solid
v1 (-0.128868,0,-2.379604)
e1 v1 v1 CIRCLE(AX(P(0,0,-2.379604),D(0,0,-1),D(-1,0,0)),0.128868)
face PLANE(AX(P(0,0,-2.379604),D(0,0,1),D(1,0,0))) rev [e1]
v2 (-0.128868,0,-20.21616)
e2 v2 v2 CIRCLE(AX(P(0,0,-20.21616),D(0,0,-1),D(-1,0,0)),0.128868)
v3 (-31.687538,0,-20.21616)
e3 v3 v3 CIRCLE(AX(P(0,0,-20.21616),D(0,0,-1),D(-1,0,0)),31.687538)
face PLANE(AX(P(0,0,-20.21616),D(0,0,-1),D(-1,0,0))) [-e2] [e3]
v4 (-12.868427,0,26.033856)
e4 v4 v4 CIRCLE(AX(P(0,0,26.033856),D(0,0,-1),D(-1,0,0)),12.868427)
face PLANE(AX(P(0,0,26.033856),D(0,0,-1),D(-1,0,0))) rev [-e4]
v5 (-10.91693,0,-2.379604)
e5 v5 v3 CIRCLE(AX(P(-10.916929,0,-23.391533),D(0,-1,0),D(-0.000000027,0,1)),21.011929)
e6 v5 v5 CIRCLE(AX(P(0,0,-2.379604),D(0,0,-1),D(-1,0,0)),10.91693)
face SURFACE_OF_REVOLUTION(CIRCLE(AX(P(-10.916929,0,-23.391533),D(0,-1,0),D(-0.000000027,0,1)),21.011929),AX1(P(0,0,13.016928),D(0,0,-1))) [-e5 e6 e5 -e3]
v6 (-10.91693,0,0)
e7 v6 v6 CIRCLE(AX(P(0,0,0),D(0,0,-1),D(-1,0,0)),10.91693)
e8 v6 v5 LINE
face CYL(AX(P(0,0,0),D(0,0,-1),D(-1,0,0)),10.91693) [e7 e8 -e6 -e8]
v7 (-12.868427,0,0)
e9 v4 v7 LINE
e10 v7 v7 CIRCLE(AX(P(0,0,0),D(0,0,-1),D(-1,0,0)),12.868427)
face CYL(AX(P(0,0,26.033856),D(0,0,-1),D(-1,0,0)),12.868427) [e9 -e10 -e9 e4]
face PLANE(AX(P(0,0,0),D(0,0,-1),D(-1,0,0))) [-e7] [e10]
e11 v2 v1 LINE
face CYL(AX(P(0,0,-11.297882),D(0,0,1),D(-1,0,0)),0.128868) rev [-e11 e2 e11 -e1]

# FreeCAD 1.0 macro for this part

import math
import FreeCAD as App
import Part
import Sketcher

V = App.Vector

doc = App.newDocument("Part")
params = doc.addObject("Spreadsheet::Sheet", "Params")
for row, (alias, value) in enumerate([
    ("revolution_angle", "360 deg"),
], start=1):
    params.set(f"A{row}", alias)
    params.set(f"B{row}", "=" + value)
    params.setAlias(f"B{row}", alias)

body = doc.addObject("PartDesign::Body", "Body")

# Sketch on XZ plane
sketch1 = doc.addObject("Sketcher::SketchObject", "Sketch")
body.addObject(sketch1)
sketch1.AttachmentSupport = (doc.XZ_Plane, [""])
sketch1.MapMode = "FlatFace"
sketch1.addGeometry([
    Part.ArcOfCircle(Part.Circle(V(-10.916929, -23.391533, 0), V(0, 0, 1), 21.011929), math.radians(90.000002), math.radians(171.308023)),  # 0
    Part.LineSegment(V(-31.687538, -20.21616, 0), V(-0.128868, -20.21616, 0)),  # 1
    Part.LineSegment(V(-0.128868, -20.21616, 0), V(-0.128868, -2.379604, 0)),  # 2
    Part.LineSegment(V(-0.128868, -2.379604, 0), V(0, -2.379604, 0)),  # 3
    Part.LineSegment(V(0, -2.379604, 0), V(0, 26.033856, 0)),  # 4
    Part.LineSegment(V(0, 26.033856, 0), V(-12.868427, 26.033856, 0)),  # 5
    Part.LineSegment(V(-12.868427, 26.033856, 0), V(-12.868427, 0, 0)),  # 6
    Part.LineSegment(V(-12.868427, 0, 0), V(-10.91693, 0, 0)),  # 7
    Part.LineSegment(V(-10.91693, 0, 0), V(-10.91693, -2.379604, 0)),  # 8
], False)
sketch1.addConstraint([
    Sketcher.Constraint("Coincident", 0, 2, 1, 1),
    Sketcher.Constraint("Coincident", 1, 2, 2, 1),
    Sketcher.Constraint("Coincident", 2, 2, 3, 1),
    Sketcher.Constraint("Coincident", 3, 2, 4, 1),
    Sketcher.Constraint("Coincident", 4, 2, 5, 1),
    Sketcher.Constraint("Coincident", 5, 2, 6, 1),
    Sketcher.Constraint("Coincident", 6, 2, 7, 1),
    Sketcher.Constraint("Coincident", 7, 2, 8, 1),
    Sketcher.Constraint("Coincident", 8, 2, 0, 1),
    Sketcher.Constraint("Horizontal", 1),
    Sketcher.Constraint("Vertical", 2),
    Sketcher.Constraint("Horizontal", 3),
    Sketcher.Constraint("Vertical", 4),
    Sketcher.Constraint("Horizontal", 5),
    Sketcher.Constraint("Vertical", 6),
    Sketcher.Constraint("Horizontal", 7),
    Sketcher.Constraint("Vertical", 8),
    Sketcher.Constraint("PointOnObject", 3, 2, -2),
    Sketcher.Constraint("PointOnObject", 6, 2, -1),
    Sketcher.Constraint("Horizontal", 3, 2, 8, 2),
    Sketcher.Constraint("Vertical", 0, 3, 7, 2),
    Sketcher.Constraint("Radius", 0, 21.011929),
    Sketcher.Constraint("DistanceX", 1, 1, 1, 2, 31.55867),
    Sketcher.Constraint("DistanceY", 4, 1, 4, 2, 28.41346),
    Sketcher.Constraint("DistanceX", 3, 1, 3, 2, 0.128868),
    Sketcher.Constraint("DistanceX", 5, 2, 5, 1, 12.868427),
    Sketcher.Constraint("DistanceX", 7, 1, 7, 2, 1.951497),
    Sketcher.Constraint("DistanceY", 6, 2, 6, 1, 26.033856),
])
revolution = doc.addObject("PartDesign::Revolution", "Revolution")
body.addObject(revolution)
revolution.Profile = sketch1
revolution.ReferenceAxis = (sketch1, ["V_Axis"])
revolution.setExpression("Angle", "Params.revolution_angle")

doc.recompute()
